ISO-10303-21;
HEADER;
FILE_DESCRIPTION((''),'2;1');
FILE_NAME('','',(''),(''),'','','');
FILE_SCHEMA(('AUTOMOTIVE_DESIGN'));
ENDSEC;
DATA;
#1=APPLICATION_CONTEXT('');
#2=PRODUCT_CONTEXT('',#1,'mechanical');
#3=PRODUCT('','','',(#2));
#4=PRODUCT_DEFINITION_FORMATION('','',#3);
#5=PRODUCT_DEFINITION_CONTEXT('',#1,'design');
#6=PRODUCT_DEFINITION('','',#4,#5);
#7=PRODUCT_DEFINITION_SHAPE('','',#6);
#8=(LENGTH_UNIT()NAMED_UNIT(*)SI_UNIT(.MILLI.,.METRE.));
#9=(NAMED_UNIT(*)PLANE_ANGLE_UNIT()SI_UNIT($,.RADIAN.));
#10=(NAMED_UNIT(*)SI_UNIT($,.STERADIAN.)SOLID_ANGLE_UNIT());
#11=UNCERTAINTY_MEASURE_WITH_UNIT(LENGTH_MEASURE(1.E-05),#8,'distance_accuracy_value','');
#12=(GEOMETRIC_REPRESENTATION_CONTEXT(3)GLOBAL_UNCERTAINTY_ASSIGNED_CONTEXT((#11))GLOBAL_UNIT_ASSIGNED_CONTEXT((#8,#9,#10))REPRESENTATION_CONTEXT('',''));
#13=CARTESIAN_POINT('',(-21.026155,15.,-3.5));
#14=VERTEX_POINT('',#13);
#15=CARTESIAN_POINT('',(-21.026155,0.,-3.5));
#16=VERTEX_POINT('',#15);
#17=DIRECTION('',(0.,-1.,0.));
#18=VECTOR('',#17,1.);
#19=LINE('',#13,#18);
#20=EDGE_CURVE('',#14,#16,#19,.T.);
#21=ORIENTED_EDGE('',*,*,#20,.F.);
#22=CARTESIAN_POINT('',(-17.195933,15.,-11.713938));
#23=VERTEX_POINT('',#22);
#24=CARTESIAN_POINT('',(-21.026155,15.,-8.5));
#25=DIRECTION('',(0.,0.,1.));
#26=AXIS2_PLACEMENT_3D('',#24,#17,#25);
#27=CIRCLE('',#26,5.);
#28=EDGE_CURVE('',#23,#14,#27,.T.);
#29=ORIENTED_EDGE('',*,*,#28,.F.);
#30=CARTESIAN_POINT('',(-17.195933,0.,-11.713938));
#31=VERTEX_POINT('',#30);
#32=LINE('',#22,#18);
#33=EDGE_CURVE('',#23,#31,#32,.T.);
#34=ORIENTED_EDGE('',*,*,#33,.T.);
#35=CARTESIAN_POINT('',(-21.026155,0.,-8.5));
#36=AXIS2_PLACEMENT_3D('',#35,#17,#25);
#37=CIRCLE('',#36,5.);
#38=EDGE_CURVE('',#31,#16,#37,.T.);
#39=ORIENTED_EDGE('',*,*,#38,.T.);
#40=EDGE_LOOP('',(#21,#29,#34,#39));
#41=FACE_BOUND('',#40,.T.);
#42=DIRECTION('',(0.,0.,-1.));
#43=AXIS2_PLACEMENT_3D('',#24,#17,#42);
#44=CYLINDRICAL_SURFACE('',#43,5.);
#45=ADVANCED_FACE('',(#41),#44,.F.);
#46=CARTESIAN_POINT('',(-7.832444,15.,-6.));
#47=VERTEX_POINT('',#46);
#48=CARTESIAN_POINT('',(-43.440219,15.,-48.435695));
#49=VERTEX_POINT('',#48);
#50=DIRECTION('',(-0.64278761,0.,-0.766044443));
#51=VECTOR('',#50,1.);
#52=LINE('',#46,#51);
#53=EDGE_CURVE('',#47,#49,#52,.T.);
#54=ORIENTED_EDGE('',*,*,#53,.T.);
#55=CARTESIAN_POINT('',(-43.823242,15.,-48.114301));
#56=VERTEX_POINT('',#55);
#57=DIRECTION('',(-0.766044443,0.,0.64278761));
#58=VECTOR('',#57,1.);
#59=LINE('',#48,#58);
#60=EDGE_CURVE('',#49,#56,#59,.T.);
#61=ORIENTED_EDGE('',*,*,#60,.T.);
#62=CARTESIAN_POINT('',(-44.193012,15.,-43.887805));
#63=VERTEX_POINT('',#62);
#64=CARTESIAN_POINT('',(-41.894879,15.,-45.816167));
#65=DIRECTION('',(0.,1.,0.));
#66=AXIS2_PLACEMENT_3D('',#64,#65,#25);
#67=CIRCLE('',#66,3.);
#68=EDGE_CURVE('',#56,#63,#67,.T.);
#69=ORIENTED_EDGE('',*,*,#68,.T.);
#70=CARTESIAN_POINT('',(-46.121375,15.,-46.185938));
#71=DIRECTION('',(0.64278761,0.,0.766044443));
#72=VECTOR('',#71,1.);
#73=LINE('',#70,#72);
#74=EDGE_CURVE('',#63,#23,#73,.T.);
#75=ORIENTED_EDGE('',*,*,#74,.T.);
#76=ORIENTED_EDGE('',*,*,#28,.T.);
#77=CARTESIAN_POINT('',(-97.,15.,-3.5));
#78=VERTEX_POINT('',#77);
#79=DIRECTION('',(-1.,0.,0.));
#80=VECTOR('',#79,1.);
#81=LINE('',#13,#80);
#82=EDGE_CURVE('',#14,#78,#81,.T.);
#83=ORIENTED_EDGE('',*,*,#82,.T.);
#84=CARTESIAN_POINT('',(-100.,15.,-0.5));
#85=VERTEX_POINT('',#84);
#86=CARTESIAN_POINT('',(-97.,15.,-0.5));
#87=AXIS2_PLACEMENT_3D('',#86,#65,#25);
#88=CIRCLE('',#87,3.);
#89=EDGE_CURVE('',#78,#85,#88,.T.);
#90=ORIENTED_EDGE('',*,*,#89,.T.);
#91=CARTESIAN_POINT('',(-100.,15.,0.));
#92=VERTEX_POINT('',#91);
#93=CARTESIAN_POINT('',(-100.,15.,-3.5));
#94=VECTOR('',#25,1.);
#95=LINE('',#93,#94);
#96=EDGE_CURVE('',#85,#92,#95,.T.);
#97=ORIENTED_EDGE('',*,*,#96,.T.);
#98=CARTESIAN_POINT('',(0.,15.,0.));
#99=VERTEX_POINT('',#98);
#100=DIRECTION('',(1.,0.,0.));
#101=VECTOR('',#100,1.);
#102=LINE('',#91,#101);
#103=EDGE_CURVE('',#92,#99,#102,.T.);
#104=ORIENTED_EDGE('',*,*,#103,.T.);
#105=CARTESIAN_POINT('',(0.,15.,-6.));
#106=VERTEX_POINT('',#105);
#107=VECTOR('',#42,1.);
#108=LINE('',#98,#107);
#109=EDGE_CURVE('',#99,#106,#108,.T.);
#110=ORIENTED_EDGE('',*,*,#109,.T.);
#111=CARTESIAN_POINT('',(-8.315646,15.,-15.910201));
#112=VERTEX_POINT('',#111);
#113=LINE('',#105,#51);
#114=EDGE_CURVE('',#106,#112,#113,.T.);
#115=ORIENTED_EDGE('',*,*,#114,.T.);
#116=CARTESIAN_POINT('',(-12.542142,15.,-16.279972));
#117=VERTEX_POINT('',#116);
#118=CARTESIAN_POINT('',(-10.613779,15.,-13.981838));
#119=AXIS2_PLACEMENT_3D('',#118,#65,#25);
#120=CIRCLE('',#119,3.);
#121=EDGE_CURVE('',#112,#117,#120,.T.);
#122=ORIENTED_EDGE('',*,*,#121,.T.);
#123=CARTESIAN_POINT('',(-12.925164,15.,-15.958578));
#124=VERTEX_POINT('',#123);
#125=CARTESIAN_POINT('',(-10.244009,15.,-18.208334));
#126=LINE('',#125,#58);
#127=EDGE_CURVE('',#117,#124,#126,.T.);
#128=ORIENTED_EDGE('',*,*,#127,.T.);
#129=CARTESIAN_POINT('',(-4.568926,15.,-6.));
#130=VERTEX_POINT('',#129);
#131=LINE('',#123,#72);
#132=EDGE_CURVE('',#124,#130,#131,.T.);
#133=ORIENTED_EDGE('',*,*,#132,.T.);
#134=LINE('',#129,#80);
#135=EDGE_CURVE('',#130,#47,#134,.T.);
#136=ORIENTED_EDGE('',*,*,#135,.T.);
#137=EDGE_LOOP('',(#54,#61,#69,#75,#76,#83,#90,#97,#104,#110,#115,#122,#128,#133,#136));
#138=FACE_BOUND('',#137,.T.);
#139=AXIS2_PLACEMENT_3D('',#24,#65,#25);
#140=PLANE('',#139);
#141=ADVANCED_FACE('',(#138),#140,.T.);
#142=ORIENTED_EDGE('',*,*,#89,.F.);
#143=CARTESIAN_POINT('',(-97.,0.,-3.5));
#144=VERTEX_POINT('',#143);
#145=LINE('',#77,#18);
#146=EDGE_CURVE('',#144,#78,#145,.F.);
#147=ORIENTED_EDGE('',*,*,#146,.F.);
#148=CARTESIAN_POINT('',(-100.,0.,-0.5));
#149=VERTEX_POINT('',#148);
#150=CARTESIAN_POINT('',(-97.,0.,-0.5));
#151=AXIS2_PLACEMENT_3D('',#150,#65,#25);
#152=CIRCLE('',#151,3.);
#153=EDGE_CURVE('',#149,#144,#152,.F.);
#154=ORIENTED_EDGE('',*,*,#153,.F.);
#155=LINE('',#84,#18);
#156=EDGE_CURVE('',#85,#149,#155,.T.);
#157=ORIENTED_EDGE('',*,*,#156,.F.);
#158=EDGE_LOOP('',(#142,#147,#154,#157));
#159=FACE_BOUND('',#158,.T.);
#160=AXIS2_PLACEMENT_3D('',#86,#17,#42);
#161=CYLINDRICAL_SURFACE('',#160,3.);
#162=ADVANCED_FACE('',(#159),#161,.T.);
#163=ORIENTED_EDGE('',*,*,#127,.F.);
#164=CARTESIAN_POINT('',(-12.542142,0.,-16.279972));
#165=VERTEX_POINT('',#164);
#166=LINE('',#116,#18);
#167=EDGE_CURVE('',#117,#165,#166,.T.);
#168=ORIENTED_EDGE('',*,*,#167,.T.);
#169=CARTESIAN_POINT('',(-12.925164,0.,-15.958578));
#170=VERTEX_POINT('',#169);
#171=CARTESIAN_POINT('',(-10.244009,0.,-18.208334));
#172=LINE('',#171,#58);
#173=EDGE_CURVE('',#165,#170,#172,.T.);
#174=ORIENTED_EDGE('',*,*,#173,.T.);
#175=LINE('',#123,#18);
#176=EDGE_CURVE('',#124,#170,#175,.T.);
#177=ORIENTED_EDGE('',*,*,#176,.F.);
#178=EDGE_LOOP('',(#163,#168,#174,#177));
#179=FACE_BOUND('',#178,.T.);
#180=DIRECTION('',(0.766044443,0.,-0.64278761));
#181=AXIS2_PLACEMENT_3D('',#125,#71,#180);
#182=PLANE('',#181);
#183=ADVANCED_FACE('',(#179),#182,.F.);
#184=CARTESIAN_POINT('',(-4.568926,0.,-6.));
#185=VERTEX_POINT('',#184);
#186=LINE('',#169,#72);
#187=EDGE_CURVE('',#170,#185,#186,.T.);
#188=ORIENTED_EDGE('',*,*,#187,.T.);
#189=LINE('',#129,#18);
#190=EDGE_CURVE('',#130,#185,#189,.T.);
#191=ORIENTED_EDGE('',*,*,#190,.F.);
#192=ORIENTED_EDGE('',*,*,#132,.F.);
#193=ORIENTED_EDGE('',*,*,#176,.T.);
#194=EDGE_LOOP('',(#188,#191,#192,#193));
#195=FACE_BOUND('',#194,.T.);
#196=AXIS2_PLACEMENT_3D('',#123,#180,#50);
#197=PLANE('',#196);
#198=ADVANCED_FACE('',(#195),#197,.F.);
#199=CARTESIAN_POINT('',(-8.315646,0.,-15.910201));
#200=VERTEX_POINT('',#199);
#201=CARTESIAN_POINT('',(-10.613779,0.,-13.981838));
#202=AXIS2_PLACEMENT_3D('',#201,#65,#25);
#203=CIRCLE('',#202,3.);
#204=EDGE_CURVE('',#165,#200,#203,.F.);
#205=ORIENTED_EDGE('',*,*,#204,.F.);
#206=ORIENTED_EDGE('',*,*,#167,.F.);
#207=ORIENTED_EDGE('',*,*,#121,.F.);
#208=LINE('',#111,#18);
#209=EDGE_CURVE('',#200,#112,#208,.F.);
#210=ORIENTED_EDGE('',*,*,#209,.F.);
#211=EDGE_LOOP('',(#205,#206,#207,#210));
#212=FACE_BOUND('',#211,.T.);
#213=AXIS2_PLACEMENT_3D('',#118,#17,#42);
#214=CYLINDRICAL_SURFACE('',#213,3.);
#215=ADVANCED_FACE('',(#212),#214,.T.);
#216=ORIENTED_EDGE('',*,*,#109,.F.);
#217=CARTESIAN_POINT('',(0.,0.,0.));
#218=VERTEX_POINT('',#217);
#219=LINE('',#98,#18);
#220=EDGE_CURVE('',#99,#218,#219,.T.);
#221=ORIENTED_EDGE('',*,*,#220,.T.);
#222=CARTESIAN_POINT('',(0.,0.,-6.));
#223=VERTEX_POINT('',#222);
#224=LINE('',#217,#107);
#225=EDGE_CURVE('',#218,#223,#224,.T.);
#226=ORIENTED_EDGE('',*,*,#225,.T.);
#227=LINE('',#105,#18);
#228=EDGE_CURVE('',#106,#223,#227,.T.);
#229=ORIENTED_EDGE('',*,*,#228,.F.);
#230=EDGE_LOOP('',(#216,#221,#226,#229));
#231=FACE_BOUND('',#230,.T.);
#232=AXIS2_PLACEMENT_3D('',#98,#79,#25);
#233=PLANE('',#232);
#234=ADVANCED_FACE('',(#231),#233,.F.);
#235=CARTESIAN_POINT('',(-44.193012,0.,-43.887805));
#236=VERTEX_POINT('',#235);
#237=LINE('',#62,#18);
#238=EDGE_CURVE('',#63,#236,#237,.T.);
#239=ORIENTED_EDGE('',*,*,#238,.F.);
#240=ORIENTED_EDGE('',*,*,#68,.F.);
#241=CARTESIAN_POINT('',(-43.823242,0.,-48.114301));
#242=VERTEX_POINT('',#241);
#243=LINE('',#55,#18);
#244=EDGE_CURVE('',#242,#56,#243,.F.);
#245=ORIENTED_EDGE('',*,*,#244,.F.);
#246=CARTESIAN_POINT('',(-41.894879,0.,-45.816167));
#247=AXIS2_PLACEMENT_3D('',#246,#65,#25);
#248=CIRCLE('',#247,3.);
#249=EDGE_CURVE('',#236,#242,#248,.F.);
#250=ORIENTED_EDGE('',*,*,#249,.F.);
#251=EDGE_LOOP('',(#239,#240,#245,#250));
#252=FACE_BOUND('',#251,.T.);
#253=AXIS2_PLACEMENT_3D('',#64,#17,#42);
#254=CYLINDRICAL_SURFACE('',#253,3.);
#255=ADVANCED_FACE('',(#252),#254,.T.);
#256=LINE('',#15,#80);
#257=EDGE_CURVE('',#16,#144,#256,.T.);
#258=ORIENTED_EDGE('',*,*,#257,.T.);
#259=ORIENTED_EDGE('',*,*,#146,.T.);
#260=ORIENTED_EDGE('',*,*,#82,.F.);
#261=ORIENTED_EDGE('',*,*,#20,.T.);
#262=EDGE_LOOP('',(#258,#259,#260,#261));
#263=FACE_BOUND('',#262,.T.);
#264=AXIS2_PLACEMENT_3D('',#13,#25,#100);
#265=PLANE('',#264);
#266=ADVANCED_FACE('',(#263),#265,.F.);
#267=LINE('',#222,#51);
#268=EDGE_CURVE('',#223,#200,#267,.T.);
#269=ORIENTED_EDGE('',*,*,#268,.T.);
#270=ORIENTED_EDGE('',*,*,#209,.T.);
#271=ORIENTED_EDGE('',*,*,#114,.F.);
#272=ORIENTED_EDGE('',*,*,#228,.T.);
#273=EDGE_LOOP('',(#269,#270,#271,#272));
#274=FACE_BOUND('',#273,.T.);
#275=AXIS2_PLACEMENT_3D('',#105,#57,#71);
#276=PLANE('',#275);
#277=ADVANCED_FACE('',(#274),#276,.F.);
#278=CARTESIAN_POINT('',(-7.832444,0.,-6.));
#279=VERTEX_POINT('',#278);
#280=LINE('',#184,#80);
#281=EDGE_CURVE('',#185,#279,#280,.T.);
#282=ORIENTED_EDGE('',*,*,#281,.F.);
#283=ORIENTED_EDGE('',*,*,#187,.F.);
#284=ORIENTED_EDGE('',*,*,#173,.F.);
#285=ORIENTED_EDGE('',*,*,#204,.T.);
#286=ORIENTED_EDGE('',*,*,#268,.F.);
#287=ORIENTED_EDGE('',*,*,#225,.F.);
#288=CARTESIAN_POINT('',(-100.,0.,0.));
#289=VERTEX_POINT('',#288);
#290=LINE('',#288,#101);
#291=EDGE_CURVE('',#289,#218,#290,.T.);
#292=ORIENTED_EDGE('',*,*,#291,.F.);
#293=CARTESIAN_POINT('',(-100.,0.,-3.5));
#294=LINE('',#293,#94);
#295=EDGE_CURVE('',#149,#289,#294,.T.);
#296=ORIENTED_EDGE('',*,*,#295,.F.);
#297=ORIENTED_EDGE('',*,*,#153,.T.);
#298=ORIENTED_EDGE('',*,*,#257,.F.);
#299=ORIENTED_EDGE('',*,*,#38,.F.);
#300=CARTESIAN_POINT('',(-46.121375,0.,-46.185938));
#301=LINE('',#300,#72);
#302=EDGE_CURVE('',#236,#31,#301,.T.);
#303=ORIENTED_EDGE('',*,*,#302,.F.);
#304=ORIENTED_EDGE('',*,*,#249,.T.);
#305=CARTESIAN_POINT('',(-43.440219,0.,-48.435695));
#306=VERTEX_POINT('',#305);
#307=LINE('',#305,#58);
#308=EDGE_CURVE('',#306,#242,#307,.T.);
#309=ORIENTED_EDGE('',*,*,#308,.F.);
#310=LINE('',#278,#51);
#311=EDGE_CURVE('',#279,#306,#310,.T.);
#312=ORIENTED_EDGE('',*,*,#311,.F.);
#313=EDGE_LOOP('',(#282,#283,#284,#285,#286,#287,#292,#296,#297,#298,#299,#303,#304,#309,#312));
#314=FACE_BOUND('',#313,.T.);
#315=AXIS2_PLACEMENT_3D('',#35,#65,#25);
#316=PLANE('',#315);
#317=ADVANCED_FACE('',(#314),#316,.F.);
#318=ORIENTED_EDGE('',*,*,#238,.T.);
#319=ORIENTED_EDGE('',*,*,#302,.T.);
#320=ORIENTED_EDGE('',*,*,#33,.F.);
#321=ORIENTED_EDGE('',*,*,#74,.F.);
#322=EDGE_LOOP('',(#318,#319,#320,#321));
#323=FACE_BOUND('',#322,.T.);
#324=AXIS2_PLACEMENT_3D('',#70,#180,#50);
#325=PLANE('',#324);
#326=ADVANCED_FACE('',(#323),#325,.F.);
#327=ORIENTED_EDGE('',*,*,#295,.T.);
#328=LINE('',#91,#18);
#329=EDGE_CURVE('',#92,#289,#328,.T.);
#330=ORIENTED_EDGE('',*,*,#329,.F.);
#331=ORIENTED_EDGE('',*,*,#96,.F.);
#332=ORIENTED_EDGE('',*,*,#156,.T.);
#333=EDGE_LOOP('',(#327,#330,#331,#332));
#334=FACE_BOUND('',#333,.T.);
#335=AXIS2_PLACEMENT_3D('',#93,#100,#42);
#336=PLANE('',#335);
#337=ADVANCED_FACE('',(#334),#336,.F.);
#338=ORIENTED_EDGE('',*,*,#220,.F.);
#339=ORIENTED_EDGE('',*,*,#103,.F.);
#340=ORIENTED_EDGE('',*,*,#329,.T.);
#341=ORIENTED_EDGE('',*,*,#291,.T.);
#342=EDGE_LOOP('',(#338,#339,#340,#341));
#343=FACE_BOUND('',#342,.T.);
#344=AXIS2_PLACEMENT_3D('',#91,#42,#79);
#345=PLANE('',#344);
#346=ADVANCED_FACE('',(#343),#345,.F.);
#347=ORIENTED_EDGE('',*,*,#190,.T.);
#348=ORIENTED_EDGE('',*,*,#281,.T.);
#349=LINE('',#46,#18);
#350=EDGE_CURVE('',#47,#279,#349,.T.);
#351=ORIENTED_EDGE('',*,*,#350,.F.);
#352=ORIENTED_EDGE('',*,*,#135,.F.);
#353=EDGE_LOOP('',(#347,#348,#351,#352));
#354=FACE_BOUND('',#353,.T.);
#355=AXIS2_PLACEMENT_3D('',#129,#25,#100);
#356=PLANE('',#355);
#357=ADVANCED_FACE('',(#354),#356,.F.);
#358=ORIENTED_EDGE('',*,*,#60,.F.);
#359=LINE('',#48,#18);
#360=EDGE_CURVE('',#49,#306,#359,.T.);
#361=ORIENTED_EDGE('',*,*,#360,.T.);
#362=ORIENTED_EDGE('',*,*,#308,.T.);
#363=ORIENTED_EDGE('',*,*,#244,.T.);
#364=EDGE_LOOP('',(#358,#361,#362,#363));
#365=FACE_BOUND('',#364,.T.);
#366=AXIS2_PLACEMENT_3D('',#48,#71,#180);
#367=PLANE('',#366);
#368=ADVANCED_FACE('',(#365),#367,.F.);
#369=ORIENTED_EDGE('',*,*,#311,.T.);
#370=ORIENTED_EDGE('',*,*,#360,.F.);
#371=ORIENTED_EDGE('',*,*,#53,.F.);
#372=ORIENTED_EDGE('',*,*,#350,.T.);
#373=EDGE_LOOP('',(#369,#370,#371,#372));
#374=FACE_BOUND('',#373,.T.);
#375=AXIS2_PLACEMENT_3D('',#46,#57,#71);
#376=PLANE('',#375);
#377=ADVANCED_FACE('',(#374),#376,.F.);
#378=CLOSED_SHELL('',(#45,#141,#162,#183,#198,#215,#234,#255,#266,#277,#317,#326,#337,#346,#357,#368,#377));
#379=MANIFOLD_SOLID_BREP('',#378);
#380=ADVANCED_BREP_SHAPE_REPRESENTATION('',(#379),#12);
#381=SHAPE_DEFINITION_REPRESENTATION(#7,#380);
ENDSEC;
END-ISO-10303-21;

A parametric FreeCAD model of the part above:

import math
import FreeCAD as App
import Part
import Sketcher
Q = App.Units.Quantity


def edges_at(feature, points):
    """Names of the edges that pass closest to the given points."""
    edges = feature.Shape.Edges
    near = lambda p: min(range(len(edges)), key=lambda i: edges[i].distToShape(Part.Vertex(*p))[0])
    return sorted({f"Edge{near(p) + 1}" for p in points})

doc = App.newDocument("Part")
body = doc.addObject("PartDesign::Body", "Body")

# Sketch on XZ plane
sketch1 = body.newObject("Sketcher::SketchObject", "Sketch")
sketch1.AttachmentSupport = (doc.getObject("XZ_Plane"), [""])
sketch1.MapMode = "FlatFace"
sketch1.addGeometry([
    Part.LineSegment(App.Vector(-46.1, -46.2, 0), App.Vector(-17.2, -11.7, 0)),  # 0
    Part.ArcOfCircle(Part.Circle(App.Vector(-21, -8.5, 0), App.Vector(0, 0, 1), 5), math.radians(-40), math.radians(90)),  # 1
    Part.LineSegment(App.Vector(-21, -3.5, 0), App.Vector(-100, -3.5, 0)),  # 2
    Part.LineSegment(App.Vector(-100, -3.5, 0), App.Vector(-100, 0, 0)),  # 3
    Part.LineSegment(App.Vector(-100, 0, 0), App.Vector(0, 0, 0)),  # 4
    Part.LineSegment(App.Vector(0, 0, 0), App.Vector(0, -6, 0)),  # 5
    Part.LineSegment(App.Vector(0, -6, 0), App.Vector(-10.2, -18.2, 0)),  # 6
    Part.LineSegment(App.Vector(-10.2, -18.2, 0), App.Vector(-12.9, -16, 0)),  # 7
    Part.LineSegment(App.Vector(-12.9, -16, 0), App.Vector(-4.6, -6, 0)),  # 8
    Part.LineSegment(App.Vector(-4.6, -6, 0), App.Vector(-7.8, -6, 0)),  # 9
    Part.LineSegment(App.Vector(-7.8, -6, 0), App.Vector(-43.4, -48.4, 0)),  # 10
    Part.LineSegment(App.Vector(-43.4, -48.4, 0), App.Vector(-46.1, -46.2, 0)),  # 11
], False)
sketch1.addConstraint([
    Sketcher.Constraint("Tangent", 0, 2, 1, 1),
    Sketcher.Constraint("Tangent", 1, 2, 2, 1),
    Sketcher.Constraint("Coincident", 2, 2, 3, 1),
    Sketcher.Constraint("Coincident", 3, 2, 4, 1),
    Sketcher.Constraint("Coincident", 4, 2, 5, 1),
    Sketcher.Constraint("Coincident", 5, 2, 6, 1),
    Sketcher.Constraint("Coincident", 6, 2, 7, 1),
    Sketcher.Constraint("Coincident", 7, 2, 8, 1),
    Sketcher.Constraint("Coincident", 8, 2, 9, 1),
    Sketcher.Constraint("Coincident", 9, 2, 10, 1),
    Sketcher.Constraint("Coincident", 10, 2, 11, 1),
    Sketcher.Constraint("Coincident", 11, 2, 0, 1),
    Sketcher.Constraint("Horizontal", 2),
    Sketcher.Constraint("Vertical", 3),
    Sketcher.Constraint("Horizontal", 4),
    Sketcher.Constraint("Vertical", 5),
    Sketcher.Constraint("Horizontal", 9),
    Sketcher.Constraint("Coincident", 4, 2, -1, 1),
    Sketcher.Constraint("Parallel", 0, 6),
    Sketcher.Constraint("Perpendicular", 6, 7),
    Sketcher.Constraint("Perpendicular", 7, 8),
    Sketcher.Constraint("Parallel", 8, 10),
    Sketcher.Constraint("Perpendicular", 10, 11),
    Sketcher.Constraint("Horizontal", 5, 2, 8, 2),
    Sketcher.Constraint("Equal", 7, 11),
    Sketcher.Constraint("Radius", 1, 5.0),
    Sketcher.Constraint("DistanceX", 4, 1, 4, 2, 100.0),
    Sketcher.Constraint("DistanceY", 5, 2, 5, 1, 6.0),
    Sketcher.Constraint("Angle", 0, Q("50 deg")),
    Sketcher.Constraint("Distance", 0, 45.0),
    Sketcher.Constraint("Distance", 8, 13.0),
    Sketcher.Constraint("DistanceY", 3, 1, 3, 2, 3.5),
    Sketcher.Constraint("Distance", 7, 3.5),
    Sketcher.Constraint("DistanceX", 9, 2, 9, 1, 3.263518),
])
pad1 = body.newObject("PartDesign::Pad", "Pad")
pad1.Profile = sketch1
pad1.Length = 15
pad1.Reversed = True
doc.recompute()

fillet = body.newObject("PartDesign::Fillet", "Fillet")
fillet.Base = (pad1, edges_at(pad1, [(-10.244, 7.5, -18.208), (-100, 7.5, -3.5), (-46.121, 7.5, -46.186)]))
fillet.Radius = 3

doc.recompute()
